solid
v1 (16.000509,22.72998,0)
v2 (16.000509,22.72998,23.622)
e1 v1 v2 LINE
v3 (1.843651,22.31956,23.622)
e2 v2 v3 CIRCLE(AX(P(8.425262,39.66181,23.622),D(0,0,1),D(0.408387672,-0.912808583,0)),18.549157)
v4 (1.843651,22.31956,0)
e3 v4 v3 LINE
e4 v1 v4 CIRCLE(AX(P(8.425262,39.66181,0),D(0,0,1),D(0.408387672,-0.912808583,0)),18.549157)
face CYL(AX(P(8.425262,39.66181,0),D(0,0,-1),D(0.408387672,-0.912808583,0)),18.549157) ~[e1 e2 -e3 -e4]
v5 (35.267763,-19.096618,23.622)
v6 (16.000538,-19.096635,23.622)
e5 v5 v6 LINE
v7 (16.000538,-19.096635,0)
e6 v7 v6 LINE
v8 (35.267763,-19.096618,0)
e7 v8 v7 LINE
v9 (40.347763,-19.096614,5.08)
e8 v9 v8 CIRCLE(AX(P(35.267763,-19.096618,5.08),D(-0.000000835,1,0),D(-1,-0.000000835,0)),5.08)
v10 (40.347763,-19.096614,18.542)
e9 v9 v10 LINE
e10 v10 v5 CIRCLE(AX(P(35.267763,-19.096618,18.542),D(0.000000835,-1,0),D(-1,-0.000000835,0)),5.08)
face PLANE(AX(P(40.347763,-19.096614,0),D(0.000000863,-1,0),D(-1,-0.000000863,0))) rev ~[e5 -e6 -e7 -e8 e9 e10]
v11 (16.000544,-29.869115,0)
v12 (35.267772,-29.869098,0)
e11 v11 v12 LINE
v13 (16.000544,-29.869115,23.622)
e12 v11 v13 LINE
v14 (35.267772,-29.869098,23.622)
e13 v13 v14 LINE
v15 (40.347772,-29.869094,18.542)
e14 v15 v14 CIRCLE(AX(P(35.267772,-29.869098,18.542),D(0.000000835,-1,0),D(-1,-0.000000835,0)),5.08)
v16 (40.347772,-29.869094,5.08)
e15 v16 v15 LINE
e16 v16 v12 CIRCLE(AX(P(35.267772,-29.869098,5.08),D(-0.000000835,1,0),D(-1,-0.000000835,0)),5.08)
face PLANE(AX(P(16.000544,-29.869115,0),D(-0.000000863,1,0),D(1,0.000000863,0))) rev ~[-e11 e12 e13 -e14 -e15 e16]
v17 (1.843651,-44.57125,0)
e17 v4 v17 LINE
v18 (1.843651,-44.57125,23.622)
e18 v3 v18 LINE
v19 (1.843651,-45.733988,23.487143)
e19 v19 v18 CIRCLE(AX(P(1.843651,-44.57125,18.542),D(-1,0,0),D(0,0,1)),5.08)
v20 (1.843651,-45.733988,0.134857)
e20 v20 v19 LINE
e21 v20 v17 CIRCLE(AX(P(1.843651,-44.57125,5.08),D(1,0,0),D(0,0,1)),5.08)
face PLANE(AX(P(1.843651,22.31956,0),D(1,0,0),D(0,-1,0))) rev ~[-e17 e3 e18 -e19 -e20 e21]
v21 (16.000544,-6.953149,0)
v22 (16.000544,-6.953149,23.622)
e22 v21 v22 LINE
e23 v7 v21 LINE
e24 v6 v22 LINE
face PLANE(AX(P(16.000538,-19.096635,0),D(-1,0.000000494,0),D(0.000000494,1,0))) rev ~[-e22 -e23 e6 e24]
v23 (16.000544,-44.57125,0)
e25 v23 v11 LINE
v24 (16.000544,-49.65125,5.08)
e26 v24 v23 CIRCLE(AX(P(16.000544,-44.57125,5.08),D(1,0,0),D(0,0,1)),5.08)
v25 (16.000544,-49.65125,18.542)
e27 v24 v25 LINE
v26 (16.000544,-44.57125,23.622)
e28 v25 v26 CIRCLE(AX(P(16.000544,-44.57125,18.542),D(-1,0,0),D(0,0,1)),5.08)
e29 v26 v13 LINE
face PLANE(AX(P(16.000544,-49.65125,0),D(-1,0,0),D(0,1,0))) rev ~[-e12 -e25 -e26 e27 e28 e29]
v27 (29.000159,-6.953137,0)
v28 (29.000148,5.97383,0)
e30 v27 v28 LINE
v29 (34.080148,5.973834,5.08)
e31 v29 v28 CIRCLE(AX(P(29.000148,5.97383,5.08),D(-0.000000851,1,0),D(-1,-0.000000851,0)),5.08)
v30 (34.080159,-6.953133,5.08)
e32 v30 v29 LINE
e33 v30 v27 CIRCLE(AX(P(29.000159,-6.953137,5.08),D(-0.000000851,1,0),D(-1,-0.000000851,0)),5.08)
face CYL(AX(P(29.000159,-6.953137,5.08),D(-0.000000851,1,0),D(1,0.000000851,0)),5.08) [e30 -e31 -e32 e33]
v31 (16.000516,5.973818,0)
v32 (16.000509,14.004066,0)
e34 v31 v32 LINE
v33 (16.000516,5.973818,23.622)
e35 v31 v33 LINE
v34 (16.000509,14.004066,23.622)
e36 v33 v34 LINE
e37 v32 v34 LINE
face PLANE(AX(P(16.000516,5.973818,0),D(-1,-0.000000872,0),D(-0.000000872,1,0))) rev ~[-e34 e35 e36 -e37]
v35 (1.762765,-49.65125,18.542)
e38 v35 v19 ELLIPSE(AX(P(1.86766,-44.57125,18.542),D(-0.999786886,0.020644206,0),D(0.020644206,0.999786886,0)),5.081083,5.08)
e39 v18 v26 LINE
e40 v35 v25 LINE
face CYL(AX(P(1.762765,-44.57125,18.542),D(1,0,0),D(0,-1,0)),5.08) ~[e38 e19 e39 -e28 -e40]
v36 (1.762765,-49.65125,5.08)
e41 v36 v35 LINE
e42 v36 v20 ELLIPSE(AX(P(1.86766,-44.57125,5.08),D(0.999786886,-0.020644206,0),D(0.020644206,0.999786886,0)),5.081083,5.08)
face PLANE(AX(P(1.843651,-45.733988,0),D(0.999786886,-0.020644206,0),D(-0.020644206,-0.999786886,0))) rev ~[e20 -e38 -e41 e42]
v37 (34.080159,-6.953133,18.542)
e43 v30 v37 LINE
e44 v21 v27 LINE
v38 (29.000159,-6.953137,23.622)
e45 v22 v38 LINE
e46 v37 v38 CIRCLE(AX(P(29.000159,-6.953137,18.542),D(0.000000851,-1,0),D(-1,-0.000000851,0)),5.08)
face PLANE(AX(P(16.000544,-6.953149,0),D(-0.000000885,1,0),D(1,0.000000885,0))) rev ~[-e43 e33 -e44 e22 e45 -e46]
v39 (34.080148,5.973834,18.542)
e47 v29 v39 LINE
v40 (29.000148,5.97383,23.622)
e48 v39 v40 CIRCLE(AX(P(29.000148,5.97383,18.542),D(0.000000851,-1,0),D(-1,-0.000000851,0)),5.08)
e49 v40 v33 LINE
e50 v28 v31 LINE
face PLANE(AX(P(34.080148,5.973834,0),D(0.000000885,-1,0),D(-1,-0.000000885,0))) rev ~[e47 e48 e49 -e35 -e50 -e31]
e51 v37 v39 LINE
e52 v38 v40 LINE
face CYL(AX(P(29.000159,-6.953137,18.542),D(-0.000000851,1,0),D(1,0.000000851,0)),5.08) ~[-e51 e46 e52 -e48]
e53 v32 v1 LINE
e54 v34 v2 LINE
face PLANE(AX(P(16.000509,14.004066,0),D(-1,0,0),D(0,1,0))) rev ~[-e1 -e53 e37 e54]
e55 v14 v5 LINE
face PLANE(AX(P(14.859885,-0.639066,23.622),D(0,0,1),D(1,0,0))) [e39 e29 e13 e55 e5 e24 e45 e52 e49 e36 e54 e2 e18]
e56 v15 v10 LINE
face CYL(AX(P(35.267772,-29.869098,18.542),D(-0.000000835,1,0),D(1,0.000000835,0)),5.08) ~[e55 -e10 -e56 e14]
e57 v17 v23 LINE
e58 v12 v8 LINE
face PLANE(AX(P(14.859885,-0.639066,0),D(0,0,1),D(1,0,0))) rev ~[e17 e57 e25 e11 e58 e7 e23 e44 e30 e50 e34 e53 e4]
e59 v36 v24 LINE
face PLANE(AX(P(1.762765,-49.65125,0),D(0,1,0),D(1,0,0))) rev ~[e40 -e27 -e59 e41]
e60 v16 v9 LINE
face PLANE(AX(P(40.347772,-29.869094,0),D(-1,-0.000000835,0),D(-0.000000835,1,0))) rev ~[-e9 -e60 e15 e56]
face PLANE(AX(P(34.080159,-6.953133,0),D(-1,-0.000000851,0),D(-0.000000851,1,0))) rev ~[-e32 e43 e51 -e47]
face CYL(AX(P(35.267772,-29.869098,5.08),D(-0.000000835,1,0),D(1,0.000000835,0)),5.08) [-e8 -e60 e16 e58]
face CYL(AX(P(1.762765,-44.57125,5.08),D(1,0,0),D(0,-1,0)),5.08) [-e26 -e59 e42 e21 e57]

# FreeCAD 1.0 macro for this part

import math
import FreeCAD as App
import Part
import Sketcher
Q = App.Units.Quantity


def edges_at(feature, points):
    """Names of the edges that pass closest to the given points."""
    edges = feature.Shape.Edges
    near = lambda p: min(range(len(edges)), key=lambda i: edges[i].distToShape(Part.Vertex(*p))[0])
    return sorted({f"Edge{near(p) + 1}" for p in points})

doc = App.newDocument("Part")
body = doc.addObject("PartDesign::Body", "Body")

# Sketch on XY plane
sketch1 = body.newObject("Sketcher::SketchObject", "Sketch")
sketch1.AttachmentSupport = (doc.getObject("XY_Plane"), [""])
sketch1.MapMode = "FlatFace"
sketch1.addGeometry([
    Part.LineSegment(App.Vector(16, 14, 0), App.Vector(16, 22.7, 0)),  # 0
    Part.ArcOfCircle(Part.Circle(App.Vector(8.4, 39.7, 0), App.Vector(0, 0, 1), 18.5), math.radians(-66), math.radians(249)),  # 1
    Part.LineSegment(App.Vector(1.8, 22.3, 0), App.Vector(1.8, -45.7, 0)),  # 2
    Part.LineSegment(App.Vector(1.8, -45.7, 0), App.Vector(1.8, -49.7, 0)),  # 3
    Part.LineSegment(App.Vector(1.8, -49.7, 0), App.Vector(16, -49.7, 0)),  # 4
    Part.LineSegment(App.Vector(16, -49.7, 0), App.Vector(16, -29.9, 0)),  # 5
    Part.LineSegment(App.Vector(16, -29.9, 0), App.Vector(40.3, -29.9, 0)),  # 6
    Part.LineSegment(App.Vector(40.3, -29.9, 0), App.Vector(40.3, -19.1, 0)),  # 7
    Part.LineSegment(App.Vector(40.3, -19.1, 0), App.Vector(16, -19.1, 0)),  # 8
    Part.LineSegment(App.Vector(16, -19.1, 0), App.Vector(16, -7, 0)),  # 9
    Part.LineSegment(App.Vector(16, -7, 0), App.Vector(34.1, -7, 0)),  # 10
    Part.LineSegment(App.Vector(34.1, -7, 0), App.Vector(34.1, 6, 0)),  # 11
    Part.LineSegment(App.Vector(34.1, 6, 0), App.Vector(16, 6, 0)),  # 12
    Part.LineSegment(App.Vector(16, 6, 0), App.Vector(16, 14, 0)),  # 13
], False)
sketch1.addConstraint([
    Sketcher.Constraint("Coincident", 0, 2, 1, 1),
    Sketcher.Constraint("Coincident", 1, 2, 2, 1),
    Sketcher.Constraint("Coincident", 2, 2, 3, 1),
    Sketcher.Constraint("Coincident", 3, 2, 4, 1),
    Sketcher.Constraint("Coincident", 4, 2, 5, 1),
    Sketcher.Constraint("Coincident", 5, 2, 6, 1),
    Sketcher.Constraint("Coincident", 6, 2, 7, 1),
    Sketcher.Constraint("Coincident", 7, 2, 8, 1),
    Sketcher.Constraint("Coincident", 8, 2, 9, 1),
    Sketcher.Constraint("Coincident", 9, 2, 10, 1),
    Sketcher.Constraint("Coincident", 10, 2, 11, 1),
    Sketcher.Constraint("Coincident", 11, 2, 12, 1),
    Sketcher.Constraint("Coincident", 12, 2, 13, 1),
    Sketcher.Constraint("Coincident", 13, 2, 0, 1),
    Sketcher.Constraint("Vertical", 0),
    Sketcher.Constraint("Vertical", 2),
    Sketcher.Constraint("Horizontal", 4),
    Sketcher.Constraint("Vertical", 5),
    Sketcher.Constraint("Perpendicular", 6, 7),
    Sketcher.Constraint("Perpendicular", 7, 8),
    Sketcher.Constraint("Perpendicular", 8, 9),
    Sketcher.Constraint("Perpendicular", 9, 10),
    Sketcher.Constraint("Perpendicular", 10, 11),
    Sketcher.Constraint("Perpendicular", 11, 12),
    Sketcher.Constraint("Perpendicular", 12, 13),
    Sketcher.Constraint("Vertical", 5, 2, 9, 2),
    Sketcher.Constraint("DistanceX", -1, 1, 3, 2, Q("0.0694002 in")),
    Sketcher.Constraint("Radius", 1, 18.549157),
    Sketcher.Constraint("DistanceX", 4, 1, 4, 2, 14.237779),
    Sketcher.Constraint("DistanceY", 5, 2, 7, 2, 10.772501),
    Sketcher.Constraint("DistanceY", 8, 2, 10, 2, 12.143502),
    Sketcher.Constraint("Distance", 6, 24.347228),
    Sketcher.Constraint("Distance", 7, 10.77248),
    Sketcher.Constraint("Distance", 13, 8.030248),
    Sketcher.Constraint("DistanceY", 0, 1, 0, 2, 8.725914),
    Sketcher.Constraint("DistanceY", 2, 2, 2, 1, 68.053548),
    Sketcher.Constraint("DistanceY", 5, 1, 5, 2, 19.782135),
    Sketcher.Constraint("DistanceX", -1, 1, 1, 3, 8.425262),
    Sketcher.Constraint("DistanceY", -1, 1, 1, 3, 39.66181),
    Sketcher.Constraint("DistanceX", -1, 1, 0, 2, 16.000509),
    Sketcher.Constraint("DistanceX", -1, 1, 1, 2, 1.843651),
    Sketcher.Constraint("DistanceY", 3, 2, -1, 1, 49.65125),
    Sketcher.Constraint("DistanceX", -1, 1, 10, 2, 34.080159),
])
pad1 = body.newObject("PartDesign::Pad", "Pad")
pad1.Profile = sketch1
pad1.Length = Q("0.93 in")
doc.recompute()

fillet = body.newObject("PartDesign::Fillet", "Fillet")
fillet.Base = (pad1, edges_at(pad1, [
    (40.348, -24.483, 23.622),
    (34.08, -0.49, 23.622),
    (8.882, -49.651, 23.622),
    (34.08, -0.49, 0),
    (40.348, -24.483, 0),
    (8.882, -49.651, 0),
]))
fillet.Radius = Q("0.2 in")

doc.recompute()
